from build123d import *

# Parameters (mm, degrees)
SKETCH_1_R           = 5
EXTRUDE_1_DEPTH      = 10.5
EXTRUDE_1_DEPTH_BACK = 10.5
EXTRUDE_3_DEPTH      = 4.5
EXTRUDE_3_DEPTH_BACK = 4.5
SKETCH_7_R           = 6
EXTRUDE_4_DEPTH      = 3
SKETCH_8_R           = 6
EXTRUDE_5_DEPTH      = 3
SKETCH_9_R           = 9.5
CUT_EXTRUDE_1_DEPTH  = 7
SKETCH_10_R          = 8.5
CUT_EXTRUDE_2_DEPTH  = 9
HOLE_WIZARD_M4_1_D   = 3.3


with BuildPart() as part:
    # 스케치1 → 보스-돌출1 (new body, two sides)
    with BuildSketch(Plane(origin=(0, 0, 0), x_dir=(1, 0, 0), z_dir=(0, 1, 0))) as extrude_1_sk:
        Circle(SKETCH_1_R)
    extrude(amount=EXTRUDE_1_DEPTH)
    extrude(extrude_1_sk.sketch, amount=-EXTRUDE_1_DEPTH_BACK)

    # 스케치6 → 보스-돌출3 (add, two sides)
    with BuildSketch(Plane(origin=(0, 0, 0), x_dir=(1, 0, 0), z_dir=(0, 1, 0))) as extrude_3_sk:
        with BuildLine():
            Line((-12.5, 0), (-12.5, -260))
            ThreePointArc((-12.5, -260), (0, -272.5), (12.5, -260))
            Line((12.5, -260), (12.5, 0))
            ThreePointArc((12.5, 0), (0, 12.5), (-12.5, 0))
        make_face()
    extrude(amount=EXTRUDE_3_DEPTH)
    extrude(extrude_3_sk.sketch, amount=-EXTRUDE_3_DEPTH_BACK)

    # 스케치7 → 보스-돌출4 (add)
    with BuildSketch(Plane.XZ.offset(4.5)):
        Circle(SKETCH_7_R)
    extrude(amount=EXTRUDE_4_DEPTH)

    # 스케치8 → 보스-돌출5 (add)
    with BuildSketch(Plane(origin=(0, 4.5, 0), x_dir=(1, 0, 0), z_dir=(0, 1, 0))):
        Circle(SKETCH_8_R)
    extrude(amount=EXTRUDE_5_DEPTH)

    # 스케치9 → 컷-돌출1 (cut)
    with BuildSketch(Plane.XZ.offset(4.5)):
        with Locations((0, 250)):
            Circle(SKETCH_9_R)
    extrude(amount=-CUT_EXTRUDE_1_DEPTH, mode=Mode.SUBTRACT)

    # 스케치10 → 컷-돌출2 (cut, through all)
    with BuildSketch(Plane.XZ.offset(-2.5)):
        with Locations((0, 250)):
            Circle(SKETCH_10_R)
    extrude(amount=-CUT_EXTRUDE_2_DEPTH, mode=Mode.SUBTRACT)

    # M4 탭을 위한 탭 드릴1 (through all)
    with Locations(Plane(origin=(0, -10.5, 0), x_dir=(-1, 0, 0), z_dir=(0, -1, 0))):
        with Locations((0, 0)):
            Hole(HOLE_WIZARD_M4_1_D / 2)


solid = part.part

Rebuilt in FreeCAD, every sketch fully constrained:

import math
import FreeCAD as App
import Part
import Sketcher

doc = App.newDocument("Part")
body = doc.addObject("PartDesign::Body", "Body")

# Sketch on XZ plane
sketch1 = body.newObject("Sketcher::SketchObject", "Sketch")
sketch1.AttachmentSupport = (doc.getObject("XZ_Plane"), [""])
sketch1.MapMode = "FlatFace"
sketch1.addGeometry(Part.Circle(App.Vector(0, 0, 0), App.Vector(0, 0, 1), 5), False)
sketch1.addConstraint(Sketcher.Constraint("Coincident", 0, 3, -1, 1))
sketch1.addConstraint(Sketcher.Constraint("Diameter", 0, 10.0))
pad1 = body.newObject("PartDesign::Pad", "Pad")
pad1.Profile = sketch1
pad1.Type = "TwoLengths"
pad1.Length = 10.5
pad1.Length2 = 10.5
pad1.Reversed = True

# Sketch on XZ plane
sketch2 = body.newObject("Sketcher::SketchObject", "Sketch001")
sketch2.AttachmentSupport = (doc.getObject("XZ_Plane"), [""])
sketch2.MapMode = "FlatFace"
sketch2.addGeometry(Part.LineSegment(App.Vector(-12, 0, 0), App.Vector(-12, 260, 0)), False)
sketch2.addGeometry(Part.ArcOfCircle(Part.Circle(App.Vector(0, 260, 0), App.Vector(0, 0, 1), 12), math.radians(0), math.radians(180)), False)
sketch2.addGeometry(Part.LineSegment(App.Vector(12, 260, 0), App.Vector(12, 0, 0)), False)
sketch2.addGeometry(Part.ArcOfCircle(Part.Circle(App.Vector(0, 0, 0), App.Vector(0, 0, 1), 12), math.radians(180), math.radians(360)), False)
sketch2.addConstraint(Sketcher.Constraint("Tangent", 0, 2, 1, 2))
sketch2.addConstraint(Sketcher.Constraint("Tangent", 1, 1, 2, 1))
sketch2.addConstraint(Sketcher.Constraint("Tangent", 2, 2, 3, 2))
sketch2.addConstraint(Sketcher.Constraint("Tangent", 3, 1, 0, 1))
sketch2.addConstraint(Sketcher.Constraint("Vertical", 0))
sketch2.addConstraint(Sketcher.Constraint("Vertical", 2))
sketch2.addConstraint(Sketcher.Constraint("Coincident", 3, 3, -1, 1))
sketch2.addConstraint(Sketcher.Constraint("Radius", 1, 12.5))
sketch2.addConstraint(Sketcher.Constraint("DistanceY", 0, 1, 0, 2, 260.0))
pad2 = body.newObject("PartDesign::Pad", "Pad001")
pad2.Profile = sketch2
pad2.Type = "TwoLengths"
pad2.Length = 4.5
pad2.Length2 = 4.5
pad2.Reversed = True

# Sketch on XZ plane
sketch3 = body.newObject("Sketcher::SketchObject", "Sketch002")
sketch3.AttachmentSupport = (doc.getObject("XZ_Plane"), [""])
sketch3.MapMode = "FlatFace"
sketch3.AttachmentOffset = App.Placement(App.Vector(0, 0, 4.5), App.Rotation())
sketch3.addGeometry(Part.Circle(App.Vector(0, 0, 0), App.Vector(0, 0, 1), 6), False)
sketch3.addConstraint(Sketcher.Constraint("Coincident", 0, 3, -1, 1))
sketch3.addConstraint(Sketcher.Constraint("Diameter", 0, 12.0))
pad3 = body.newObject("PartDesign::Pad", "Pad002")
pad3.Profile = sketch3
pad3.Length = 3

# Sketch on XZ plane
sketch4 = body.newObject("Sketcher::SketchObject", "Sketch003")
sketch4.AttachmentSupport = (doc.getObject("XZ_Plane"), [""])
sketch4.MapMode = "FlatFace"
sketch4.AttachmentOffset = App.Placement(App.Vector(0, 0, -4.5), App.Rotation())
sketch4.addGeometry(Part.Circle(App.Vector(0, 0, 0), App.Vector(0, 0, 1), 6), False)
sketch4.addConstraint(Sketcher.Constraint("Coincident", 0, 3, -1, 1))
sketch4.addConstraint(Sketcher.Constraint("Diameter", 0, 12.0))
pad4 = body.newObject("PartDesign::Pad", "Pad003")
pad4.Profile = sketch4
pad4.Length = 3
pad4.Reversed = True

# Sketch on XZ plane
sketch5 = body.newObject("Sketcher::SketchObject", "Sketch004")
sketch5.AttachmentSupport = (doc.getObject("XZ_Plane"), [""])
sketch5.MapMode = "FlatFace"
sketch5.AttachmentOffset = App.Placement(App.Vector(0, 0, 4.5), App.Rotation())
sketch5.addGeometry(Part.Circle(App.Vector(0, 250, 0), App.Vector(0, 0, 1), 10), False)
sketch5.addConstraint(Sketcher.Constraint("PointOnObject", 0, 3, -2))
sketch5.addConstraint(Sketcher.Constraint("Diameter", 0, 19.0))
sketch5.addConstraint(Sketcher.Constraint("DistanceY", -1, 1, 0, 3, 250.0))
pocket1 = body.newObject("PartDesign::Pocket", "Pocket")
pocket1.Profile = sketch5
pocket1.Length = 7

# Sketch on XZ plane
sketch6 = body.newObject("Sketcher::SketchObject", "Sketch005")
sketch6.AttachmentSupport = (doc.getObject("XZ_Plane"), [""])
sketch6.MapMode = "FlatFace"
sketch6.AttachmentOffset = App.Placement(App.Vector(0, 0, -2.5), App.Rotation())
sketch6.addGeometry(Part.Circle(App.Vector(0, 250, 0), App.Vector(0, 0, 1), 8), False)
sketch6.addConstraint(Sketcher.Constraint("PointOnObject", 0, 3, -2))
sketch6.addConstraint(Sketcher.Constraint("Diameter", 0, 17.0))
sketch6.addConstraint(Sketcher.Constraint("DistanceY", -1, 1, 0, 3, 250.0))
pocket2 = body.newObject("PartDesign::Pocket", "Pocket001")
pocket2.Profile = sketch6
pocket2.Type = "ThroughAll"

# Sketch on XZ plane
sketch7 = body.newObject("Sketcher::SketchObject", "Sketch006")
sketch7.AttachmentSupport = (doc.getObject("XZ_Plane"), [""])
sketch7.MapMode = "FlatFace"
sketch7.AttachmentOffset = App.Placement(App.Vector(0, 0, 10.5), App.Rotation())
sketch7.addGeometry(Part.Circle(App.Vector(0, 0, 0), App.Vector(0, 0, 1), 1.6), False)
sketch7.addConstraint(Sketcher.Constraint("Coincident", 0, 3, -1, 1))
sketch7.addConstraint(Sketcher.Constraint("Diameter", 0, 3.3))
doc.recompute()
hole = body.newObject("PartDesign::Hole", "Hole")
hole.Profile = sketch7
hole.ThreadType = "None"
hole.Diameter = 3.3
hole.DepthType = "ThroughAll"

doc.recompute()
